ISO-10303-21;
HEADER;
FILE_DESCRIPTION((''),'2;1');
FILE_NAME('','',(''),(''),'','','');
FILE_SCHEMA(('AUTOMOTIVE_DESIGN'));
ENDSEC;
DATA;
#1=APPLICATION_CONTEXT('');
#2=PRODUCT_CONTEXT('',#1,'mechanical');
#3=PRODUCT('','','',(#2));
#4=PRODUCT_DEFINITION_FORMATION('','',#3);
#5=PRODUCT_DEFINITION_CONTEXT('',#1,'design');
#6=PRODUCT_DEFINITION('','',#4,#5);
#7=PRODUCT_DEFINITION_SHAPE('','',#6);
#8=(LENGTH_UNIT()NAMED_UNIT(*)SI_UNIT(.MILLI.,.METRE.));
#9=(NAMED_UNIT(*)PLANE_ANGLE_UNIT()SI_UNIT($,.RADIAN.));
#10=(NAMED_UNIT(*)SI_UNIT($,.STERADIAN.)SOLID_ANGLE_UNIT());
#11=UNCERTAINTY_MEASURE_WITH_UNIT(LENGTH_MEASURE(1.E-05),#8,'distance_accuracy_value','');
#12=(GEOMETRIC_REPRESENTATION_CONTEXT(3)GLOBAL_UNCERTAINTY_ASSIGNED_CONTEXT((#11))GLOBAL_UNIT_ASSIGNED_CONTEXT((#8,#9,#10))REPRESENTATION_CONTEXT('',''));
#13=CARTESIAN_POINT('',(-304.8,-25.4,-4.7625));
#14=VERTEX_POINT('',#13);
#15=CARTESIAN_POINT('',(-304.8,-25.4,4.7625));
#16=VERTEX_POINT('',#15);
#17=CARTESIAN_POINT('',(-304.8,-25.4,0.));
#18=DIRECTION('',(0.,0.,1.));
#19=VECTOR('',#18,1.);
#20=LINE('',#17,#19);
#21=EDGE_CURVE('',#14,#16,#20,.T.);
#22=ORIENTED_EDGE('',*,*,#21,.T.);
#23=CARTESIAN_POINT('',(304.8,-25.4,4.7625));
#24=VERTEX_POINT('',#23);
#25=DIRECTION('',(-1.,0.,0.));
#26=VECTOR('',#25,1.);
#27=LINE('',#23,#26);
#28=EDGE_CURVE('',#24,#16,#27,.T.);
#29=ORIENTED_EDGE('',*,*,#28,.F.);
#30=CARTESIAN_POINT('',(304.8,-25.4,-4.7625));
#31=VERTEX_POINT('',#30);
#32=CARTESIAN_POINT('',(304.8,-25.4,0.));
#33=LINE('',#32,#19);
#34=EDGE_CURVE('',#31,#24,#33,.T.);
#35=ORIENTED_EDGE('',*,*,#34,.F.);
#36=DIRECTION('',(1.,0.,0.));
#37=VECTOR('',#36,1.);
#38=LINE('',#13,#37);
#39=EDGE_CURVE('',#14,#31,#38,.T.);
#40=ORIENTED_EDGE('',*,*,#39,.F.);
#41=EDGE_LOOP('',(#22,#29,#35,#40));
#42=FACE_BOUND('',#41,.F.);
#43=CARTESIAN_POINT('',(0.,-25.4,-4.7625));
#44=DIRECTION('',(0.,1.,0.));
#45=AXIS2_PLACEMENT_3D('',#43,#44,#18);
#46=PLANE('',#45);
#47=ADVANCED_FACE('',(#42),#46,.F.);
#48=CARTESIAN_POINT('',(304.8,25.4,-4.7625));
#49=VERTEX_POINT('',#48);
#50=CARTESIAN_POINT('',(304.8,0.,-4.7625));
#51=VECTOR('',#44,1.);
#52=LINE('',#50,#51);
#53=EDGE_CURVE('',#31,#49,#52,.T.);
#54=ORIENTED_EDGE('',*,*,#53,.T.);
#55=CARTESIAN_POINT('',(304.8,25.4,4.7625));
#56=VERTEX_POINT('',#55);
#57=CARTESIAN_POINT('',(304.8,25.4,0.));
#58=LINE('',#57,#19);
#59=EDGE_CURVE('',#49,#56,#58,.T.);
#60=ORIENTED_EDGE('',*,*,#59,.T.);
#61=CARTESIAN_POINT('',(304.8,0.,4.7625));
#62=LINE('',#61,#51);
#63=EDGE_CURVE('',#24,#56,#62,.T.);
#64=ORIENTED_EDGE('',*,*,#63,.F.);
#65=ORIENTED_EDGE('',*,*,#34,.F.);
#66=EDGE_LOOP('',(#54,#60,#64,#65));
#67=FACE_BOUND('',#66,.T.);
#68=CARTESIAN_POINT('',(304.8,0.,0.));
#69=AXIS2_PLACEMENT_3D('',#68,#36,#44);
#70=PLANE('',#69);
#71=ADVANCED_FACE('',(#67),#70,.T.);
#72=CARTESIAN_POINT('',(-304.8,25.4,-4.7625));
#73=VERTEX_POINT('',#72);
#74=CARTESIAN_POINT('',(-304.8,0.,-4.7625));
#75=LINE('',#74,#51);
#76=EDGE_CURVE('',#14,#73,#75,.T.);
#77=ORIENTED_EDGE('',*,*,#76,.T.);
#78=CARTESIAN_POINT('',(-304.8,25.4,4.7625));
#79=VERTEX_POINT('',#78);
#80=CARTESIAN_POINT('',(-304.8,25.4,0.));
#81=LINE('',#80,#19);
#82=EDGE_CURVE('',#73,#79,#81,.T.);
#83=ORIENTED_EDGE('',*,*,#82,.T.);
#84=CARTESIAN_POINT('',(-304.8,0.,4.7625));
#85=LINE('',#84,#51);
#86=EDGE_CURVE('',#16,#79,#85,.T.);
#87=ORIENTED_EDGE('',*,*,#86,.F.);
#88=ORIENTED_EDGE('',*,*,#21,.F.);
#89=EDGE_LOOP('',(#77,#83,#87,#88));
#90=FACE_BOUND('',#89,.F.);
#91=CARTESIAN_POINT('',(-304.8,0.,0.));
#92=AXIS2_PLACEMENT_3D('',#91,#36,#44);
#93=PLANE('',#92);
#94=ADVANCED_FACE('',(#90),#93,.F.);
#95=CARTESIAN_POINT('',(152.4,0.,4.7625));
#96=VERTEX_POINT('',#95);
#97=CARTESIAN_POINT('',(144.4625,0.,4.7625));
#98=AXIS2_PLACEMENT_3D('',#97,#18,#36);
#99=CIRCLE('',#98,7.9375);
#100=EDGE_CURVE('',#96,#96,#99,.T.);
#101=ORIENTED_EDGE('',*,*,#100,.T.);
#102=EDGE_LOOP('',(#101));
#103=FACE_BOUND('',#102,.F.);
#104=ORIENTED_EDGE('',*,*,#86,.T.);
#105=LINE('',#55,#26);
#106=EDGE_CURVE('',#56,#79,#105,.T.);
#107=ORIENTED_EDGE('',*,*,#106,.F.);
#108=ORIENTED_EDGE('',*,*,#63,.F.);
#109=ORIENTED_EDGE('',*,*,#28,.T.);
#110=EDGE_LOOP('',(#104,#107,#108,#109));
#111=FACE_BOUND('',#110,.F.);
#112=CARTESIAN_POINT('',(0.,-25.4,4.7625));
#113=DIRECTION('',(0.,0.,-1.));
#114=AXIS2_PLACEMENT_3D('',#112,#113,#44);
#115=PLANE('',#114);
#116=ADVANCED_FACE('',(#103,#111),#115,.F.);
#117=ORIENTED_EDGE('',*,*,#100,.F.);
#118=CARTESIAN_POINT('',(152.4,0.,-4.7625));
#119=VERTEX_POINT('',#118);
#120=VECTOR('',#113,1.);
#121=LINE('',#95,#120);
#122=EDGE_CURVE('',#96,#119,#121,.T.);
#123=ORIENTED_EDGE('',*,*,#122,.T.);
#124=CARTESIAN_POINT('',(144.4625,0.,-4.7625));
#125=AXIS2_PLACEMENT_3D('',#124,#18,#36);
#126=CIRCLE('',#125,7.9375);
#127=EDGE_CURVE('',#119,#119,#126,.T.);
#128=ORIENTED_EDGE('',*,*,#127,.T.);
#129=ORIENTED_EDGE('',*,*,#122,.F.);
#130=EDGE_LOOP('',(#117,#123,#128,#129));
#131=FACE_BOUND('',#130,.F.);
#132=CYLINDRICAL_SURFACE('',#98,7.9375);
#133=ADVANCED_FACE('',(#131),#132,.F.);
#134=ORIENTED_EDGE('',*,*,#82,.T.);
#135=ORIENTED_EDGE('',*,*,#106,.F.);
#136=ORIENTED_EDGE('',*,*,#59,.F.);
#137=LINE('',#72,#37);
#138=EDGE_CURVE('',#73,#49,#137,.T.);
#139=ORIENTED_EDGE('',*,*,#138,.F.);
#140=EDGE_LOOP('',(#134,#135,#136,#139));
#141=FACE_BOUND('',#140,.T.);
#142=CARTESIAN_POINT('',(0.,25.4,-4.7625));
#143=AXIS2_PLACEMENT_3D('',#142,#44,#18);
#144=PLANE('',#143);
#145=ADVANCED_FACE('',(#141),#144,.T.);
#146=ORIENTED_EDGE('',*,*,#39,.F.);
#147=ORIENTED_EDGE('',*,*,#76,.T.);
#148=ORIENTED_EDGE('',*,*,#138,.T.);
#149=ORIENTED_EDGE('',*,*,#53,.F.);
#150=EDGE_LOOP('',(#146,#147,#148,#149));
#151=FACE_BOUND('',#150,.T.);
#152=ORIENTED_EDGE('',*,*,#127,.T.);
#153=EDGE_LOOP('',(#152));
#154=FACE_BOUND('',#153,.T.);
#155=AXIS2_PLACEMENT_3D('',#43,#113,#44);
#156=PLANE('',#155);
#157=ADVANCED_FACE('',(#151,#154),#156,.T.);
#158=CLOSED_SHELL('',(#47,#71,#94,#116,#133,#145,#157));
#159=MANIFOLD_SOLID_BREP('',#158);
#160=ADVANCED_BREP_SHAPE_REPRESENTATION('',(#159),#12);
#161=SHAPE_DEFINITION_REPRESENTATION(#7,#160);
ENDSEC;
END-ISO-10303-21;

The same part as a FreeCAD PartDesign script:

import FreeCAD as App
import Part
import Sketcher
Q = App.Units.Quantity

doc = App.newDocument("Part")
params = doc.addObject("Spreadsheet::Sheet", "Params")
for row, (alias, value) in enumerate([
    ("sketch1_width", "2 in"),
    ("sketch1_height", "0.375 in"),
    ("pad1_length", "24 in"),
    ("sketch2_diameter", "0.625 in"),
], start=1):
    params.set(f"A{row}", alias)
    params.set(f"B{row}", "=" + value)
    params.setAlias(f"B{row}", alias)

body = doc.addObject("PartDesign::Body", "Body")

# Sketch on YZ plane
sketch1 = body.newObject("Sketcher::SketchObject", "Sketch")
sketch1.AttachmentSupport = (doc.getObject("YZ_Plane"), [""])
sketch1.MapMode = "FlatFace"
sketch1.addGeometry(Part.LineSegment(App.Vector(-25, 5, 0), App.Vector(-25, -5, 0)), False)
sketch1.addGeometry(Part.LineSegment(App.Vector(-25, -5, 0), App.Vector(25, -5, 0)), False)
sketch1.addGeometry(Part.LineSegment(App.Vector(25, -5, 0), App.Vector(25, 5, 0)), False)
sketch1.addGeometry(Part.LineSegment(App.Vector(25, 5, 0), App.Vector(-25, 5, 0)), False)
sketch1.addConstraint(Sketcher.Constraint("Coincident", 0, 2, 1, 1))
sketch1.addConstraint(Sketcher.Constraint("Coincident", 1, 2, 2, 1))
sketch1.addConstraint(Sketcher.Constraint("Coincident", 2, 2, 3, 1))
sketch1.addConstraint(Sketcher.Constraint("Coincident", 3, 2, 0, 1))
sketch1.addConstraint(Sketcher.Constraint("Vertical", 0))
sketch1.addConstraint(Sketcher.Constraint("Horizontal", 1))
sketch1.addConstraint(Sketcher.Constraint("Vertical", 2))
sketch1.addConstraint(Sketcher.Constraint("Horizontal", 3))
sketch1.addConstraint(Sketcher.Constraint("Symmetric", 0, 2, 2, 2, -1, 1))
sketch1.addConstraint(Sketcher.Constraint("DistanceX", 1, 1, 1, 2, Q("2 in")))
sketch1.addConstraint(Sketcher.Constraint("DistanceY", 0, 2, 0, 1, Q("0.375 in")))
sketch1.setExpression("Constraints[9]", "Params.sketch1_width")
sketch1.setExpression("Constraints[10]", "Params.sketch1_height")
pad1 = body.newObject("PartDesign::Pad", "Pad")
pad1.Profile = sketch1
pad1.setExpression("Length", "Params.pad1_length")
pad1.Midplane = True

# Sketch on XY plane
sketch2 = body.newObject("Sketcher::SketchObject", "Sketch001")
sketch2.AttachmentSupport = (doc.getObject("XY_Plane"), [""])
sketch2.MapMode = "FlatFace"
sketch2.AttachmentOffset = App.Placement(App.Vector(0, 0, 0.1875 * 25.4), App.Rotation())
sketch2.addGeometry(Part.Circle(App.Vector(144, 0, 0), App.Vector(0, 0, 1), 8), False)
sketch2.addConstraint(Sketcher.Constraint("PointOnObject", 0, 3, -1))
sketch2.addConstraint(Sketcher.Constraint("Diameter", 0, Q("0.625 in")))
sketch2.addConstraint(Sketcher.Constraint("DistanceX", -1, 1, 0, 3, Q("5.6875 in")))
sketch2.setExpression("Constraints[1]", "Params.sketch2_diameter")
pocket1 = body.newObject("PartDesign::Pocket", "Pocket")
pocket1.Profile = sketch2
pocket1.Type = "ThroughAll"

doc.recompute()
